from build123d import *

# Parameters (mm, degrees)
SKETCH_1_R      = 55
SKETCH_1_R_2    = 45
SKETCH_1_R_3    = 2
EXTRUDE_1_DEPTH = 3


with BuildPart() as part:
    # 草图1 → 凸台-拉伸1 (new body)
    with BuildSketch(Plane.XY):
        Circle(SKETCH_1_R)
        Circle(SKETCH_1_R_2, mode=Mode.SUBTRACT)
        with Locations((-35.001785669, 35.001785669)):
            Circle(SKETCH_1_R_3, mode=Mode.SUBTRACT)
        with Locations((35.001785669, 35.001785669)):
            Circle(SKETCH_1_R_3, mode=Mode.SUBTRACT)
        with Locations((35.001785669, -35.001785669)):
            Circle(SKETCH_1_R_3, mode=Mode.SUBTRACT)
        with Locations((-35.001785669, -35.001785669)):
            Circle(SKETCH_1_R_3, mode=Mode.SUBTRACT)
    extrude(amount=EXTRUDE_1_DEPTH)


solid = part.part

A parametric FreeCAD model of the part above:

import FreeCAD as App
import Part
import Sketcher

V = App.Vector

doc = App.newDocument("Part")
body = doc.addObject("PartDesign::Body", "Body")

# Sketch on XY plane
sketch1 = body.newObject("Sketcher::SketchObject", "Sketch")
sketch1.AttachmentSupport = (doc.getObject("XY_Plane"), [""])
sketch1.MapMode = "FlatFace"
sketch1.addGeometry([
    Part.Circle(V(0, 0, 0), V(0, 0, 1), 55),  # 0
    Part.Circle(V(-35.001786, -35.001786, 0), V(0, 0, 1), 2),  # 1
    Part.Circle(V(35.001786, -35.001786, 0), V(0, 0, 1), 2),  # 2
    Part.Circle(V(-35.001786, 35.001786, 0), V(0, 0, 1), 2),  # 3
    Part.Circle(V(0, 0, 0), V(0, 0, 1), 45),  # 4
    Part.Circle(V(35.001786, 35.001786, 0), V(0, 0, 1), 2),  # 5
], False)
sketch1.addConstraint([
    Sketcher.Constraint("Coincident", 0, 3, -1, 1),
    Sketcher.Constraint("Coincident", 4, 3, -1, 1),
    Sketcher.Constraint("Equal", 1, 2),
    Sketcher.Constraint("Equal", 2, 3),
    Sketcher.Constraint("Equal", 3, 5),
    Sketcher.Constraint("Symmetric", 2, 3, 3, 3, -1, 1),
    Sketcher.Constraint("Symmetric", 1, 3, 5, 3, -1, 1),
    Sketcher.Constraint("Symmetric", 1, 3, 2, 3, -2),
    Sketcher.Constraint("Diameter", 0, 110.0),
    Sketcher.Constraint("Diameter", 1, 4.0),
    Sketcher.Constraint("Diameter", 4, 90.0),
    Sketcher.Constraint("DistanceX", 1, 3, 2, 3, 70.003571),
    Sketcher.Constraint("DistanceY", 1, 3, 3, 3, 70.003571),
])
pad1 = body.newObject("PartDesign::Pad", "Pad")
pad1.Profile = sketch1
pad1.Length = 3

doc.recompute()
